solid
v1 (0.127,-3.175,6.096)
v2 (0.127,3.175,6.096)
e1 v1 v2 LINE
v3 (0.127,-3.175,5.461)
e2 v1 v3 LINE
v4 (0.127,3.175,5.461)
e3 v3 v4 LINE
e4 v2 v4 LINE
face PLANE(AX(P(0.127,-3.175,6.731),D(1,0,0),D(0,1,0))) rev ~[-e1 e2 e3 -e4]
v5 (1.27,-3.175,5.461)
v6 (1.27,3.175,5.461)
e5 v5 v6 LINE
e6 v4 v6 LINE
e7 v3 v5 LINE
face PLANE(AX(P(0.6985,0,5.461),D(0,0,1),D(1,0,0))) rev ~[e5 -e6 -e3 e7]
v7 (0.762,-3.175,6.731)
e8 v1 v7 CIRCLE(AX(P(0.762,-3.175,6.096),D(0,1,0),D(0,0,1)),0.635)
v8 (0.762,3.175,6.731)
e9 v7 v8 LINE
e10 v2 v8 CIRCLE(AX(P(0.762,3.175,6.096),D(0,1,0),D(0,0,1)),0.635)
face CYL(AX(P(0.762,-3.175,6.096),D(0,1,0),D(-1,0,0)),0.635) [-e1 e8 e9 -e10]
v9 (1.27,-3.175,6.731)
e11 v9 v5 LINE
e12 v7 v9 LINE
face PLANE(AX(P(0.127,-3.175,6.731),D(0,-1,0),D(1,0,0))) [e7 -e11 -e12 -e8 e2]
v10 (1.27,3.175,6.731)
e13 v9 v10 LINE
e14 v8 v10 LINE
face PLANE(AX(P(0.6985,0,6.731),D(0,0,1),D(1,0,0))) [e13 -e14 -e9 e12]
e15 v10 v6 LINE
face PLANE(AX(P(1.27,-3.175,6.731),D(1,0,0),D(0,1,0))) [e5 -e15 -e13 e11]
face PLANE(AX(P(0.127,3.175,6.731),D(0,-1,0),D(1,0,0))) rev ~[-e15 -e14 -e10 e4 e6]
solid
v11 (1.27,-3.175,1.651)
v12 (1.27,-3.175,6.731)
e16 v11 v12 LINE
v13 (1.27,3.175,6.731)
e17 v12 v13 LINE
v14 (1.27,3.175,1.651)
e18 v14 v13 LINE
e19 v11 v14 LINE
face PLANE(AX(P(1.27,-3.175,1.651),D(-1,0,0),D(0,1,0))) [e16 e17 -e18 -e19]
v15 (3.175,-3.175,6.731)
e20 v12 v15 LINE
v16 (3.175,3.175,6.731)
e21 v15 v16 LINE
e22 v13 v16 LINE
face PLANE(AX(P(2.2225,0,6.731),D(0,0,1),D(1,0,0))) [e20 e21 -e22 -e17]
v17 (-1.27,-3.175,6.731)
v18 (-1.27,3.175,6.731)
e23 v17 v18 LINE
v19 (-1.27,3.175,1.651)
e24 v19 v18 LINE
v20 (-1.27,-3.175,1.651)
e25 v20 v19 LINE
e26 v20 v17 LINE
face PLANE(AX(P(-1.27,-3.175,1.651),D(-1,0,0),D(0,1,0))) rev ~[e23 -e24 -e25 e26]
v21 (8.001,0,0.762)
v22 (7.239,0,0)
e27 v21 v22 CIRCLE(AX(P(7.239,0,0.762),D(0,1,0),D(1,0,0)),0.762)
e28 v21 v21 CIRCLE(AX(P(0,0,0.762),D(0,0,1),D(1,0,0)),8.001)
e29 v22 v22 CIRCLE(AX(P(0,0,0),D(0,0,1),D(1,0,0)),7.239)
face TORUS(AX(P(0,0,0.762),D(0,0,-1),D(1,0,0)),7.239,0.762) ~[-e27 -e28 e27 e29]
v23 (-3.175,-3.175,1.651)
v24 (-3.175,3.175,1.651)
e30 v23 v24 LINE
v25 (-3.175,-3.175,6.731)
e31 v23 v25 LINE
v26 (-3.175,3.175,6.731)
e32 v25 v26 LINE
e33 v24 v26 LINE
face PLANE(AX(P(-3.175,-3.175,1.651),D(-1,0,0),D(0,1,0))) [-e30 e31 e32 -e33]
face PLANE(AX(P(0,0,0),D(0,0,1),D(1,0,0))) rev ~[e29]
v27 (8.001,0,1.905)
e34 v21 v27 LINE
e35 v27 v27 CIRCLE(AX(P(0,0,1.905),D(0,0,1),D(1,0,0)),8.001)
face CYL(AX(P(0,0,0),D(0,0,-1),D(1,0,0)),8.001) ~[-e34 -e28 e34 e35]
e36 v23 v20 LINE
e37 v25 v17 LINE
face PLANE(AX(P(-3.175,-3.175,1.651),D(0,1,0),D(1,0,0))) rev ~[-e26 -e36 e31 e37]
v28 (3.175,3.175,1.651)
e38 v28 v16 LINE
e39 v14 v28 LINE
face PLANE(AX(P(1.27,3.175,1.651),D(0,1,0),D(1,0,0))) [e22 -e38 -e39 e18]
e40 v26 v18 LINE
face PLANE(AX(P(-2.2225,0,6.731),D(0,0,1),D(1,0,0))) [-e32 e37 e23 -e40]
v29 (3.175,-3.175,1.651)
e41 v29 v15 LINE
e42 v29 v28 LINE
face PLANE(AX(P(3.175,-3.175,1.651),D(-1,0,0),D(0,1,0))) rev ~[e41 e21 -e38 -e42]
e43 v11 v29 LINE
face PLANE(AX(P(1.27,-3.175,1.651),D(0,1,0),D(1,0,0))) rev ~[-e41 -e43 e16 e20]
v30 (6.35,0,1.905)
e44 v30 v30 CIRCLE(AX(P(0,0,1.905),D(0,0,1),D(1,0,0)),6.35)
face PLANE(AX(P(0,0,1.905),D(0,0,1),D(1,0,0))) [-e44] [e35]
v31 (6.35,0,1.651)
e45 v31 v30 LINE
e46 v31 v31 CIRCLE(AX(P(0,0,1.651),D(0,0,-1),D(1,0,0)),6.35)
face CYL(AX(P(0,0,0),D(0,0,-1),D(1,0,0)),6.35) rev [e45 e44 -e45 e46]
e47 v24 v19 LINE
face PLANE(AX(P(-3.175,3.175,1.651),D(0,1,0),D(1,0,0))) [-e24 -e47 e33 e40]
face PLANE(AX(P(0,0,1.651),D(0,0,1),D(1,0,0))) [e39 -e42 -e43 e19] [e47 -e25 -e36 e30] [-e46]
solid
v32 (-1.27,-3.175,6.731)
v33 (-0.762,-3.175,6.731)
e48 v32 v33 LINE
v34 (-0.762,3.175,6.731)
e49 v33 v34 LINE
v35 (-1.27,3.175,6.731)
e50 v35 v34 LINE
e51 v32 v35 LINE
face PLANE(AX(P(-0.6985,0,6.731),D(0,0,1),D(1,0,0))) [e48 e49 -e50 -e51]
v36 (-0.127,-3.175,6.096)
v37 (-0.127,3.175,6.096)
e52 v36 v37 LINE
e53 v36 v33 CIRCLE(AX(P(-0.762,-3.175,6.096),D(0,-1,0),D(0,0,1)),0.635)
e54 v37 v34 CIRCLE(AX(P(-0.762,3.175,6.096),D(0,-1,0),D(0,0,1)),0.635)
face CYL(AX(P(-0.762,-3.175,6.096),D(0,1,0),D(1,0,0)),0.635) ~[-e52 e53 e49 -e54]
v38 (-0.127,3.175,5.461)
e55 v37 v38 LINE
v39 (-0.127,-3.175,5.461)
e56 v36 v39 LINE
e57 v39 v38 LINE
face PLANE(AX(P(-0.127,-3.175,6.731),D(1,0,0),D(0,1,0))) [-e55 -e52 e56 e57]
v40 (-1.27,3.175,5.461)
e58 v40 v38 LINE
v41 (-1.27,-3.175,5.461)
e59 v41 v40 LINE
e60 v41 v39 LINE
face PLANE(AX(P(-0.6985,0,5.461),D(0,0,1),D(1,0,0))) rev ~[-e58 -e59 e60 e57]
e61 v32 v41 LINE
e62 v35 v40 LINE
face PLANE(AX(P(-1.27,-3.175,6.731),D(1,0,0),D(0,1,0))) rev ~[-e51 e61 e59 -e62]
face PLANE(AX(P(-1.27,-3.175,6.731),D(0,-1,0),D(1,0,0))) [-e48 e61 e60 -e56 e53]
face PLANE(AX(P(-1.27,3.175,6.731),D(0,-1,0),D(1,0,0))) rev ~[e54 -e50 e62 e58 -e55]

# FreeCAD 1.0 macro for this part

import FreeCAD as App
import Part
import Sketcher
from FreeCAD import Vector
Q = App.Units.Quantity


def edges_at(feature, points):
    """Names of the edges that pass closest to the given points."""
    edges = feature.Shape.Edges
    near = lambda p: min(range(len(edges)), key=lambda i: edges[i].distToShape(Part.Vertex(*p))[0])
    return sorted({f"Edge{near(p) + 1}" for p in points})


def faces_at(feature, points):
    """Names of the faces that lie closest to the given points."""
    faces = feature.Shape.Faces
    near = lambda p: min(range(len(faces)), key=lambda i: faces[i].distToShape(Part.Vertex(*p))[0])
    return sorted({f"Face{near(p) + 1}" for p in points})


def add_polygon(sketch, points):
    """Adds a closed chain of lines whose ends are joined by coincident constraints."""
    first, n = sketch.GeometryCount, len(points)
    for a, b in zip(points, points[1:] + points[:1]):
        sketch.addGeometry(Part.LineSegment(App.Vector(*a, 0), App.Vector(*b, 0)), False)
    for i in range(n):
        sketch.addConstraint(Sketcher.Constraint("Coincident", first + i, 2, first + (i + 1) % n, 1))

doc = App.newDocument("Part")
body = doc.addObject("PartDesign::Body", "Body")

sketch1 = body.newObject("Sketcher::SketchObject", "Sketch")
sketch1.AttachmentSupport = (doc.getObject("XY_Plane"), [""])
sketch1.MapMode = "FlatFace"
sketch1.addGeometry(Part.Circle(Vector(0, 0, 0), Vector(0, 0, 1), 8), False)
sketch1.addConstraint(Sketcher.Constraint("Coincident", 0, 3, -1, 1))
sketch1.addConstraint(Sketcher.Constraint("Diameter", 0, Q("0.63 in")))
pad1 = body.newObject("PartDesign::Pad", "Pad")
pad1.Profile = sketch1
pad1.Length = Q("0.075 in")
doc.recompute()

thickness = body.newObject("PartDesign::Thickness", "Thickness")
thickness.Base = (pad1, faces_at(pad1, [(0, 0, 1.905)]))
thickness.Value = Q("0.065 in")
thickness.Reversed = True
thickness.Join = "Arc"

sketch2 = body.newObject("Sketcher::SketchObject", "Sketch001")
sketch2.AttachmentSupport = (doc.getObject("XY_Plane"), [""])
sketch2.MapMode = "FlatFace"
sketch2.AttachmentOffset = App.Placement(Vector(0, 0, 0.065 * 25.4), App.Rotation())
add_polygon(sketch2, [(1.3, 3.2), (1.3, -3.2), (3.2, -3.2), (3.2, 3.2)])
add_polygon(sketch2, [(-3.2, 3.2), (-3.2, -3.2), (-1.3, -3.2), (-1.3, 3.2)])
sketch2.addConstraint(Sketcher.Constraint("Vertical", 0))
sketch2.addConstraint(Sketcher.Constraint("Horizontal", 1))
sketch2.addConstraint(Sketcher.Constraint("Vertical", 2))
sketch2.addConstraint(Sketcher.Constraint("Horizontal", 3))
sketch2.addConstraint(Sketcher.Constraint("Vertical", 4))
sketch2.addConstraint(Sketcher.Constraint("Horizontal", 5))
sketch2.addConstraint(Sketcher.Constraint("Vertical", 6))
sketch2.addConstraint(Sketcher.Constraint("Horizontal", 7))
sketch2.addConstraint(Sketcher.Constraint("Symmetric", 2, 2, 4, 2, -1, 1))
sketch2.addConstraint(Sketcher.Constraint("Symmetric", 0, 2, 6, 2, -1, 1))
sketch2.addConstraint(Sketcher.Constraint("Horizontal", 1, 2, 4, 2))
sketch2.addConstraint(Sketcher.Constraint("DistanceY", 0, 2, 0, 1, Q("0.25 in")))
sketch2.addConstraint(Sketcher.Constraint("DistanceX", 5, 2, 0, 2, Q("0.1 in")))
sketch2.addConstraint(Sketcher.Constraint("DistanceX", 1, 1, 1, 2, Q("0.075 in")))
pad2 = body.newObject("PartDesign::Pad", "Pad001")
pad2.Profile = sketch2
pad2.Length = Q("0.2 in")
doc.recompute()

fillet = body.newObject("PartDesign::Fillet", "Fillet")
fillet.Base = (pad2, edges_at(pad2, [(-8.001, 0, 0)]))
fillet.Radius = Q("0.03 in")
body2 = doc.addObject("PartDesign::Body", "Body001")
body2.AllowCompound = True

sketch3 = body2.newObject("Sketcher::SketchObject", "Sketch002")
sketch3.AttachmentSupport = (doc.getObject("XY_Plane001"), [""])
sketch3.MapMode = "FlatFace"
sketch3.AttachmentOffset = App.Placement(Vector(0, 0, 0.265 * 25.4), App.Rotation())
add_polygon(sketch3, [(0.1, 3.2), (0.1, -3.2), (1.3, -3.2), (1.3, 3.2)])
add_polygon(sketch3, [(-1.3, 3.2), (-1.3, -3.2), (-0.1, -3.2), (-0.1, 3.2)])
sketch3.addConstraint(Sketcher.Constraint("Vertical", 0))
sketch3.addConstraint(Sketcher.Constraint("Horizontal", 1))
sketch3.addConstraint(Sketcher.Constraint("Vertical", 2))
sketch3.addConstraint(Sketcher.Constraint("Horizontal", 3))
sketch3.addConstraint(Sketcher.Constraint("Vertical", 4))
sketch3.addConstraint(Sketcher.Constraint("Horizontal", 5))
sketch3.addConstraint(Sketcher.Constraint("Vertical", 6))
sketch3.addConstraint(Sketcher.Constraint("Horizontal", 7))
sketch3.addConstraint(Sketcher.Constraint("Symmetric", 2, 2, 4, 2, -1, 1))
sketch3.addConstraint(Sketcher.Constraint("Symmetric", 0, 2, 6, 2, -1, 1))
sketch3.addConstraint(Sketcher.Constraint("Horizontal", 1, 2, 4, 2))
sketch3.addConstraint(Sketcher.Constraint("DistanceY", 0, 2, 0, 1, Q("0.25 in")))
sketch3.addConstraint(Sketcher.Constraint("DistanceX", 4, 2, 1, 2, Q("0.1 in")))
sketch3.addConstraint(Sketcher.Constraint("DistanceX", 1, 1, 1, 2, Q("0.045 in")))
pad3 = body2.newObject("PartDesign::Pad", "Pad002")
pad3.Profile = sketch3
pad3.Length = Q("0.05 in")
pad3.Reversed = True
doc.recompute()

fillet2 = body2.newObject("PartDesign::Fillet", "Fillet001")
fillet2.Base = (pad3, edges_at(pad3, [(-0.127, 0, 6.731), (0.127, 0, 6.731)]))
fillet2.Radius = Q("0.025 in")

doc.recompute()
